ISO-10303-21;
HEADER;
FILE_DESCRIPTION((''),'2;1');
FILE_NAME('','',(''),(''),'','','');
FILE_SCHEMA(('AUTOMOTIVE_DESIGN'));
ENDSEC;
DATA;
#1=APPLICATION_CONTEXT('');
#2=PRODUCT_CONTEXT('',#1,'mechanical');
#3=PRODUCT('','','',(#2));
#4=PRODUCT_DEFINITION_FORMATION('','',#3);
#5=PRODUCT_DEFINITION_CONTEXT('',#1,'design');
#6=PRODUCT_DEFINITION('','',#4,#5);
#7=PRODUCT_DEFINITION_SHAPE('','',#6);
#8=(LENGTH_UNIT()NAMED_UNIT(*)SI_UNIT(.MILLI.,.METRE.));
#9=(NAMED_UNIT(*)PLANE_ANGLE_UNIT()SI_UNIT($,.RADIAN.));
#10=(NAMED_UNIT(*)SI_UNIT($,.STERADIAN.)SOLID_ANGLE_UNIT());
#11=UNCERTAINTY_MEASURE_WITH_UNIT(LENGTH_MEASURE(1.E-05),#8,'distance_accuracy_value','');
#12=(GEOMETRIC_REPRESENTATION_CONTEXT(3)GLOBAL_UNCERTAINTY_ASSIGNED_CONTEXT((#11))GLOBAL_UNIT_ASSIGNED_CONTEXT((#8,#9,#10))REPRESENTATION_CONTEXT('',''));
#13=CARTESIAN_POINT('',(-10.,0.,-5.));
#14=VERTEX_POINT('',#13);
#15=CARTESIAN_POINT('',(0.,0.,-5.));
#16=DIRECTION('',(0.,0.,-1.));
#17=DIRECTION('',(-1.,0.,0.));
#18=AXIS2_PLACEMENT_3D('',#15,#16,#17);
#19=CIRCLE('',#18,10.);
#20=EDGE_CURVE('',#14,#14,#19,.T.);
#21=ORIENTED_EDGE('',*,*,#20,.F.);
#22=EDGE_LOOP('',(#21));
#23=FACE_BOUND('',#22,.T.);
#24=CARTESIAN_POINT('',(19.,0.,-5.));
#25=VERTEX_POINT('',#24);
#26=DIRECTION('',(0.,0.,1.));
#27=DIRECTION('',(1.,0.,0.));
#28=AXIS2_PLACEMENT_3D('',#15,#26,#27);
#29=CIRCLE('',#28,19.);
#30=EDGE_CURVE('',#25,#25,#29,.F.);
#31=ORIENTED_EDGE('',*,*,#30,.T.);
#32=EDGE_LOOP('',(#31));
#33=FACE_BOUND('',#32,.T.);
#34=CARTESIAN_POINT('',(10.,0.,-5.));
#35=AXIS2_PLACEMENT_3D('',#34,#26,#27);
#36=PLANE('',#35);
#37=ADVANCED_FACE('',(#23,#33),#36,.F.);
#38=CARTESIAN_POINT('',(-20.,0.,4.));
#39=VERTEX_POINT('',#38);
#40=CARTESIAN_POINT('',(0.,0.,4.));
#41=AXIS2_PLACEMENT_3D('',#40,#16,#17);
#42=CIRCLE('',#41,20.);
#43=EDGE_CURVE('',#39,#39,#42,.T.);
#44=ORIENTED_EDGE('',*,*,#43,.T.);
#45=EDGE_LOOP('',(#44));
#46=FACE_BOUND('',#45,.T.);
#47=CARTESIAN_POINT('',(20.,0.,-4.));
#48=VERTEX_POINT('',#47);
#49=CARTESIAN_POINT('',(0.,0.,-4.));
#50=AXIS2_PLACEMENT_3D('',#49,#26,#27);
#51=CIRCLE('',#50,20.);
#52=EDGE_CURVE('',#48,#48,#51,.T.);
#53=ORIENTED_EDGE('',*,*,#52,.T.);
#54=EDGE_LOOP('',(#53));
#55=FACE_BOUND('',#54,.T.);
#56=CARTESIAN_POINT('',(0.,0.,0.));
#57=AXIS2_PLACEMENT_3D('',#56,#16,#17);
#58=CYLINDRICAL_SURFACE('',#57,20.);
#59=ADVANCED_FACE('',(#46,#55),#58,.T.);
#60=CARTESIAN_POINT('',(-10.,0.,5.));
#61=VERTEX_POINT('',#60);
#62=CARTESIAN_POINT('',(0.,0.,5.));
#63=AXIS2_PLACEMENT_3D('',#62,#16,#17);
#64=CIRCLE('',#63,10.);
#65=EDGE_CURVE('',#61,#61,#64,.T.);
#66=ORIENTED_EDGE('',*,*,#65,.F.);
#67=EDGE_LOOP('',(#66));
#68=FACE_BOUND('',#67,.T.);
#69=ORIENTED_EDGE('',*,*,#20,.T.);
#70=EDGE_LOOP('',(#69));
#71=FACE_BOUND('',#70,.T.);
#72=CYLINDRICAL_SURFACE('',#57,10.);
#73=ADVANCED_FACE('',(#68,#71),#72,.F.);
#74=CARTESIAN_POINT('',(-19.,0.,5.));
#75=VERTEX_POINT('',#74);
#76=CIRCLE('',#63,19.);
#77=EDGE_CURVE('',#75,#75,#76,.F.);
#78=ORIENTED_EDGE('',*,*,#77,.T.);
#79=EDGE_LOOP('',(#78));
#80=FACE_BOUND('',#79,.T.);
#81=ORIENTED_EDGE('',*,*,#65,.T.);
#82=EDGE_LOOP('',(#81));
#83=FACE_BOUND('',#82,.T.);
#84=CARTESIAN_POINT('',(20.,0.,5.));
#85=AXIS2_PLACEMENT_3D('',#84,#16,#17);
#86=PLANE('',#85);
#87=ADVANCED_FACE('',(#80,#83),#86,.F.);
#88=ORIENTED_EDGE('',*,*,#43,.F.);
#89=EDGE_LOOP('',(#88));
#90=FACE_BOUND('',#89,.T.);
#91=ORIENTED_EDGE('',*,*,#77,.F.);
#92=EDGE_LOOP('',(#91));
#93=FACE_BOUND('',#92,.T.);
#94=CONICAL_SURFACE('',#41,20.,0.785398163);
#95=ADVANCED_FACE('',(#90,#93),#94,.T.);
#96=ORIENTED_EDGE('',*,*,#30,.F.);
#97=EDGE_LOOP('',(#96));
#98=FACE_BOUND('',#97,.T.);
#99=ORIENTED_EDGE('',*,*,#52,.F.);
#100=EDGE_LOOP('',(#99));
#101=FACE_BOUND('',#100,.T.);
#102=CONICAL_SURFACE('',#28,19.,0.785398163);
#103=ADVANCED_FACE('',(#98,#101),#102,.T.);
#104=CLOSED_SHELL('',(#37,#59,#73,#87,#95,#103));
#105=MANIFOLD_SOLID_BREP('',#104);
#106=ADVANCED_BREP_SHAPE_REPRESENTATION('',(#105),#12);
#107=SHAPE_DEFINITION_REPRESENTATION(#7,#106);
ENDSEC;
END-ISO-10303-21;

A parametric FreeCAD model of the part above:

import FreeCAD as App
import Part
import Sketcher
Q = App.Units.Quantity


def edges_at(feature, points):
    """Names of the edges that pass closest to the given points."""
    edges = feature.Shape.Edges
    near = lambda p: min(range(len(edges)), key=lambda i: edges[i].distToShape(Part.Vertex(*p))[0])
    return sorted({f"Edge{near(p) + 1}" for p in points})


def add_polygon(sketch, points):
    """Adds a closed chain of lines whose ends are joined by coincident constraints."""
    first, n = sketch.GeometryCount, len(points)
    for a, b in zip(points, points[1:] + points[:1]):
        sketch.addGeometry(Part.LineSegment(App.Vector(*a, 0), App.Vector(*b, 0)), False)
    for i in range(n):
        sketch.addConstraint(Sketcher.Constraint("Coincident", first + i, 2, first + (i + 1) % n, 1))

doc = App.newDocument("Part")
params = doc.addObject("Spreadsheet::Sheet", "Params")
for row, (alias, value) in enumerate([
    ("sketch1_width", "10 mm"),
    ("revolution_angle", "360 deg"),
    ("chamfer_size", "1 mm"),
], start=1):
    params.set(f"A{row}", alias)
    params.set(f"B{row}", "=" + value)
    params.setAlias(f"B{row}", alias)

body = doc.addObject("PartDesign::Body", "Body")

sketch1 = doc.addObject("Sketcher::SketchObject", "Sketch")
body.addObject(sketch1)
sketch1.AttachmentSupport = (doc.XZ_Plane, [""])
sketch1.MapMode = "FlatFace"
add_polygon(sketch1, [(10, -5), (10, 5), (20, 5), (20, -5)])
sketch1.addConstraint([
    Sketcher.Constraint("Vertical", 0),
    Sketcher.Constraint("Horizontal", 1),
    Sketcher.Constraint("Vertical", 2),
    Sketcher.Constraint("Horizontal", 3),
    Sketcher.Constraint("Equal", 3, 0),
    Sketcher.Constraint("DistanceX", 1, 1, 1, 2, Q("10 mm")),
    Sketcher.Constraint("DistanceX", -1, 1, 0, 2, Q("10 mm")),
    Sketcher.Constraint("DistanceY", -1, 1, 0, 2, Q("5 mm")),
])
sketch1.setExpression("Constraints[9]", "Params.sketch1_width")
revolution = doc.addObject("PartDesign::Revolution", "Revolution")
body.addObject(revolution)
revolution.Profile = sketch1
revolution.ReferenceAxis = (sketch1, ["V_Axis"])
revolution.setExpression("Angle", "Params.revolution_angle")
doc.recompute()

chamfer = doc.addObject("PartDesign::Chamfer", "Chamfer")
body.addObject(chamfer)
chamfer.Base = (revolution, edges_at(revolution, [(20, 0, 5), (20, 0, -5)]))
chamfer.setExpression("Size", "Params.chamfer_size")

doc.recompute()
